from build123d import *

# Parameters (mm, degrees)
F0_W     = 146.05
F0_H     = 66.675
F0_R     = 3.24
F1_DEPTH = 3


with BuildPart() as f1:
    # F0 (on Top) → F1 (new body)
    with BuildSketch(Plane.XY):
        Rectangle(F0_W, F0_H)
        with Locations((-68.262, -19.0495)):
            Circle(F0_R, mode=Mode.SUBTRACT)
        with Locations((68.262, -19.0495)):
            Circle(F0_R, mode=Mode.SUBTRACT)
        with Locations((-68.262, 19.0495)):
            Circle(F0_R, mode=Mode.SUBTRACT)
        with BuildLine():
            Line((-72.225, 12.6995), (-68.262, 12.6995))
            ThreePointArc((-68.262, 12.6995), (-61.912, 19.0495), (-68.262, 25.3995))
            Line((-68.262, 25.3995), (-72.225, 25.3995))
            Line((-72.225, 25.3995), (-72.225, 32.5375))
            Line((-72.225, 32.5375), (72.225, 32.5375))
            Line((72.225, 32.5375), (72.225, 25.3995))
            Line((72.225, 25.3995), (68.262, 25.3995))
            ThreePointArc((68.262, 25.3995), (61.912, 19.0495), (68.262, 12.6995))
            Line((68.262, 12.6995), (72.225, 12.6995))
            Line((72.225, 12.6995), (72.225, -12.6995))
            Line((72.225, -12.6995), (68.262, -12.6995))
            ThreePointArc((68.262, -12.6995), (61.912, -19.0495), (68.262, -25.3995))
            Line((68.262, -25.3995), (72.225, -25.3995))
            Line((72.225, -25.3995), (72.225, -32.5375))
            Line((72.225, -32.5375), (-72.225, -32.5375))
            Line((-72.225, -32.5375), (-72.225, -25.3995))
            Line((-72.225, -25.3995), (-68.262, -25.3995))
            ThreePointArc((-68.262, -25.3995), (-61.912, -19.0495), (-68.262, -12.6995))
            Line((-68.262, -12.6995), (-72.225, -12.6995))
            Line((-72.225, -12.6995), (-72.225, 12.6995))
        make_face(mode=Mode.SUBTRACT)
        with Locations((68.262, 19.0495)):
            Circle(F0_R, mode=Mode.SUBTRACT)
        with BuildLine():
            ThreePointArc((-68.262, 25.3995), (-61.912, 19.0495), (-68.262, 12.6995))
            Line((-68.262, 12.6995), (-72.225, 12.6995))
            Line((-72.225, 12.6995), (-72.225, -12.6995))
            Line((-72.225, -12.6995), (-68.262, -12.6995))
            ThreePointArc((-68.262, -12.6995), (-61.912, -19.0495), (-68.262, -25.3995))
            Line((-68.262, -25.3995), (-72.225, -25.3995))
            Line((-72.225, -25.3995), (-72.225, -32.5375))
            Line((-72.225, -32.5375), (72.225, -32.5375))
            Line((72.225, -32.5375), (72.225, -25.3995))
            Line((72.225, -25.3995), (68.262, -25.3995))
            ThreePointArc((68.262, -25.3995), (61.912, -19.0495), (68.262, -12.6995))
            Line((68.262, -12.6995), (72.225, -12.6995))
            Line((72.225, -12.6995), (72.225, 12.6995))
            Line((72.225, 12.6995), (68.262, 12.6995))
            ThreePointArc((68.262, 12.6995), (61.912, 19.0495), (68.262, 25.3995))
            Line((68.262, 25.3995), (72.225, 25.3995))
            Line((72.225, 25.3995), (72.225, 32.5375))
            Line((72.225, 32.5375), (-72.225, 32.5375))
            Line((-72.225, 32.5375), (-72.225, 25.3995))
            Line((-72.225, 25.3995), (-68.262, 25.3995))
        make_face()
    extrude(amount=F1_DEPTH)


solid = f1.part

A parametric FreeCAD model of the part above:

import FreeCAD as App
import Part
import Sketcher
Q = App.Units.Quantity


def add_polygon(sketch, points):
    """Adds a closed chain of lines whose ends are joined by coincident constraints."""
    first, n = sketch.GeometryCount, len(points)
    for a, b in zip(points, points[1:] + points[:1]):
        sketch.addGeometry(Part.LineSegment(App.Vector(*a, 0), App.Vector(*b, 0)), False)
    for i in range(n):
        sketch.addConstraint(Sketcher.Constraint("Coincident", first + i, 2, first + (i + 1) % n, 1))

doc = App.newDocument("Part")
body = doc.addObject("PartDesign::Body", "Body")

# Sketch on XY plane
sketch1 = body.newObject("Sketcher::SketchObject", "Sketch")
sketch1.AttachmentSupport = (doc.getObject("XY_Plane"), [""])
sketch1.MapMode = "FlatFace"
add_polygon(sketch1, [(-73, 33.3), (-73, -33.3), (73, -33.3), (73, 33.3)])  # lines 0-3
sketch1.addGeometry(Part.Circle(App.Vector(-68.3, -19, 0), App.Vector(0, 0, 1), 3.2), False)  # 4
sketch1.addGeometry(Part.Circle(App.Vector(68.3, -19, 0), App.Vector(0, 0, 1), 3.2), False)  # 5
sketch1.addGeometry(Part.Circle(App.Vector(-68.3, 19, 0), App.Vector(0, 0, 1), 3.2), False)  # 6
sketch1.addGeometry(Part.Circle(App.Vector(68.3, 19, 0), App.Vector(0, 0, 1), 3.2), False)  # 7
sketch1.addConstraint([
    Sketcher.Constraint("Vertical", 0),
    Sketcher.Constraint("Horizontal", 1),
    Sketcher.Constraint("Vertical", 2),
    Sketcher.Constraint("Horizontal", 3),
    Sketcher.Constraint("Equal", 4, 5),
    Sketcher.Constraint("Equal", 5, 6),
    Sketcher.Constraint("Equal", 6, 7),
    Sketcher.Constraint("Symmetric", 5, 3, 6, 3, -1, 1),
    Sketcher.Constraint("Symmetric", 4, 3, 7, 3, -1, 1),
    Sketcher.Constraint("Symmetric", 0, 2, 2, 2, -1, 1),
    Sketcher.Constraint("Symmetric", 4, 3, 5, 3, -2),
    Sketcher.Constraint("DistanceX", 1, 1, 1, 2, Q("5.75 in")),
    Sketcher.Constraint("Diameter", 4, Q("6.48 mm")),
    Sketcher.Constraint("DistanceY", 0, 2, 0, 1, Q("2.625 in")),
    Sketcher.Constraint("DistanceX", 4, 3, -1, 1, Q("68.262 mm")),
    Sketcher.Constraint("DistanceY", 4, 3, -1, 1, Q("19.0495 mm")),
])
pad1 = body.newObject("PartDesign::Pad", "Pad")
pad1.Profile = sketch1
pad1.Length = 3

doc.recompute()
